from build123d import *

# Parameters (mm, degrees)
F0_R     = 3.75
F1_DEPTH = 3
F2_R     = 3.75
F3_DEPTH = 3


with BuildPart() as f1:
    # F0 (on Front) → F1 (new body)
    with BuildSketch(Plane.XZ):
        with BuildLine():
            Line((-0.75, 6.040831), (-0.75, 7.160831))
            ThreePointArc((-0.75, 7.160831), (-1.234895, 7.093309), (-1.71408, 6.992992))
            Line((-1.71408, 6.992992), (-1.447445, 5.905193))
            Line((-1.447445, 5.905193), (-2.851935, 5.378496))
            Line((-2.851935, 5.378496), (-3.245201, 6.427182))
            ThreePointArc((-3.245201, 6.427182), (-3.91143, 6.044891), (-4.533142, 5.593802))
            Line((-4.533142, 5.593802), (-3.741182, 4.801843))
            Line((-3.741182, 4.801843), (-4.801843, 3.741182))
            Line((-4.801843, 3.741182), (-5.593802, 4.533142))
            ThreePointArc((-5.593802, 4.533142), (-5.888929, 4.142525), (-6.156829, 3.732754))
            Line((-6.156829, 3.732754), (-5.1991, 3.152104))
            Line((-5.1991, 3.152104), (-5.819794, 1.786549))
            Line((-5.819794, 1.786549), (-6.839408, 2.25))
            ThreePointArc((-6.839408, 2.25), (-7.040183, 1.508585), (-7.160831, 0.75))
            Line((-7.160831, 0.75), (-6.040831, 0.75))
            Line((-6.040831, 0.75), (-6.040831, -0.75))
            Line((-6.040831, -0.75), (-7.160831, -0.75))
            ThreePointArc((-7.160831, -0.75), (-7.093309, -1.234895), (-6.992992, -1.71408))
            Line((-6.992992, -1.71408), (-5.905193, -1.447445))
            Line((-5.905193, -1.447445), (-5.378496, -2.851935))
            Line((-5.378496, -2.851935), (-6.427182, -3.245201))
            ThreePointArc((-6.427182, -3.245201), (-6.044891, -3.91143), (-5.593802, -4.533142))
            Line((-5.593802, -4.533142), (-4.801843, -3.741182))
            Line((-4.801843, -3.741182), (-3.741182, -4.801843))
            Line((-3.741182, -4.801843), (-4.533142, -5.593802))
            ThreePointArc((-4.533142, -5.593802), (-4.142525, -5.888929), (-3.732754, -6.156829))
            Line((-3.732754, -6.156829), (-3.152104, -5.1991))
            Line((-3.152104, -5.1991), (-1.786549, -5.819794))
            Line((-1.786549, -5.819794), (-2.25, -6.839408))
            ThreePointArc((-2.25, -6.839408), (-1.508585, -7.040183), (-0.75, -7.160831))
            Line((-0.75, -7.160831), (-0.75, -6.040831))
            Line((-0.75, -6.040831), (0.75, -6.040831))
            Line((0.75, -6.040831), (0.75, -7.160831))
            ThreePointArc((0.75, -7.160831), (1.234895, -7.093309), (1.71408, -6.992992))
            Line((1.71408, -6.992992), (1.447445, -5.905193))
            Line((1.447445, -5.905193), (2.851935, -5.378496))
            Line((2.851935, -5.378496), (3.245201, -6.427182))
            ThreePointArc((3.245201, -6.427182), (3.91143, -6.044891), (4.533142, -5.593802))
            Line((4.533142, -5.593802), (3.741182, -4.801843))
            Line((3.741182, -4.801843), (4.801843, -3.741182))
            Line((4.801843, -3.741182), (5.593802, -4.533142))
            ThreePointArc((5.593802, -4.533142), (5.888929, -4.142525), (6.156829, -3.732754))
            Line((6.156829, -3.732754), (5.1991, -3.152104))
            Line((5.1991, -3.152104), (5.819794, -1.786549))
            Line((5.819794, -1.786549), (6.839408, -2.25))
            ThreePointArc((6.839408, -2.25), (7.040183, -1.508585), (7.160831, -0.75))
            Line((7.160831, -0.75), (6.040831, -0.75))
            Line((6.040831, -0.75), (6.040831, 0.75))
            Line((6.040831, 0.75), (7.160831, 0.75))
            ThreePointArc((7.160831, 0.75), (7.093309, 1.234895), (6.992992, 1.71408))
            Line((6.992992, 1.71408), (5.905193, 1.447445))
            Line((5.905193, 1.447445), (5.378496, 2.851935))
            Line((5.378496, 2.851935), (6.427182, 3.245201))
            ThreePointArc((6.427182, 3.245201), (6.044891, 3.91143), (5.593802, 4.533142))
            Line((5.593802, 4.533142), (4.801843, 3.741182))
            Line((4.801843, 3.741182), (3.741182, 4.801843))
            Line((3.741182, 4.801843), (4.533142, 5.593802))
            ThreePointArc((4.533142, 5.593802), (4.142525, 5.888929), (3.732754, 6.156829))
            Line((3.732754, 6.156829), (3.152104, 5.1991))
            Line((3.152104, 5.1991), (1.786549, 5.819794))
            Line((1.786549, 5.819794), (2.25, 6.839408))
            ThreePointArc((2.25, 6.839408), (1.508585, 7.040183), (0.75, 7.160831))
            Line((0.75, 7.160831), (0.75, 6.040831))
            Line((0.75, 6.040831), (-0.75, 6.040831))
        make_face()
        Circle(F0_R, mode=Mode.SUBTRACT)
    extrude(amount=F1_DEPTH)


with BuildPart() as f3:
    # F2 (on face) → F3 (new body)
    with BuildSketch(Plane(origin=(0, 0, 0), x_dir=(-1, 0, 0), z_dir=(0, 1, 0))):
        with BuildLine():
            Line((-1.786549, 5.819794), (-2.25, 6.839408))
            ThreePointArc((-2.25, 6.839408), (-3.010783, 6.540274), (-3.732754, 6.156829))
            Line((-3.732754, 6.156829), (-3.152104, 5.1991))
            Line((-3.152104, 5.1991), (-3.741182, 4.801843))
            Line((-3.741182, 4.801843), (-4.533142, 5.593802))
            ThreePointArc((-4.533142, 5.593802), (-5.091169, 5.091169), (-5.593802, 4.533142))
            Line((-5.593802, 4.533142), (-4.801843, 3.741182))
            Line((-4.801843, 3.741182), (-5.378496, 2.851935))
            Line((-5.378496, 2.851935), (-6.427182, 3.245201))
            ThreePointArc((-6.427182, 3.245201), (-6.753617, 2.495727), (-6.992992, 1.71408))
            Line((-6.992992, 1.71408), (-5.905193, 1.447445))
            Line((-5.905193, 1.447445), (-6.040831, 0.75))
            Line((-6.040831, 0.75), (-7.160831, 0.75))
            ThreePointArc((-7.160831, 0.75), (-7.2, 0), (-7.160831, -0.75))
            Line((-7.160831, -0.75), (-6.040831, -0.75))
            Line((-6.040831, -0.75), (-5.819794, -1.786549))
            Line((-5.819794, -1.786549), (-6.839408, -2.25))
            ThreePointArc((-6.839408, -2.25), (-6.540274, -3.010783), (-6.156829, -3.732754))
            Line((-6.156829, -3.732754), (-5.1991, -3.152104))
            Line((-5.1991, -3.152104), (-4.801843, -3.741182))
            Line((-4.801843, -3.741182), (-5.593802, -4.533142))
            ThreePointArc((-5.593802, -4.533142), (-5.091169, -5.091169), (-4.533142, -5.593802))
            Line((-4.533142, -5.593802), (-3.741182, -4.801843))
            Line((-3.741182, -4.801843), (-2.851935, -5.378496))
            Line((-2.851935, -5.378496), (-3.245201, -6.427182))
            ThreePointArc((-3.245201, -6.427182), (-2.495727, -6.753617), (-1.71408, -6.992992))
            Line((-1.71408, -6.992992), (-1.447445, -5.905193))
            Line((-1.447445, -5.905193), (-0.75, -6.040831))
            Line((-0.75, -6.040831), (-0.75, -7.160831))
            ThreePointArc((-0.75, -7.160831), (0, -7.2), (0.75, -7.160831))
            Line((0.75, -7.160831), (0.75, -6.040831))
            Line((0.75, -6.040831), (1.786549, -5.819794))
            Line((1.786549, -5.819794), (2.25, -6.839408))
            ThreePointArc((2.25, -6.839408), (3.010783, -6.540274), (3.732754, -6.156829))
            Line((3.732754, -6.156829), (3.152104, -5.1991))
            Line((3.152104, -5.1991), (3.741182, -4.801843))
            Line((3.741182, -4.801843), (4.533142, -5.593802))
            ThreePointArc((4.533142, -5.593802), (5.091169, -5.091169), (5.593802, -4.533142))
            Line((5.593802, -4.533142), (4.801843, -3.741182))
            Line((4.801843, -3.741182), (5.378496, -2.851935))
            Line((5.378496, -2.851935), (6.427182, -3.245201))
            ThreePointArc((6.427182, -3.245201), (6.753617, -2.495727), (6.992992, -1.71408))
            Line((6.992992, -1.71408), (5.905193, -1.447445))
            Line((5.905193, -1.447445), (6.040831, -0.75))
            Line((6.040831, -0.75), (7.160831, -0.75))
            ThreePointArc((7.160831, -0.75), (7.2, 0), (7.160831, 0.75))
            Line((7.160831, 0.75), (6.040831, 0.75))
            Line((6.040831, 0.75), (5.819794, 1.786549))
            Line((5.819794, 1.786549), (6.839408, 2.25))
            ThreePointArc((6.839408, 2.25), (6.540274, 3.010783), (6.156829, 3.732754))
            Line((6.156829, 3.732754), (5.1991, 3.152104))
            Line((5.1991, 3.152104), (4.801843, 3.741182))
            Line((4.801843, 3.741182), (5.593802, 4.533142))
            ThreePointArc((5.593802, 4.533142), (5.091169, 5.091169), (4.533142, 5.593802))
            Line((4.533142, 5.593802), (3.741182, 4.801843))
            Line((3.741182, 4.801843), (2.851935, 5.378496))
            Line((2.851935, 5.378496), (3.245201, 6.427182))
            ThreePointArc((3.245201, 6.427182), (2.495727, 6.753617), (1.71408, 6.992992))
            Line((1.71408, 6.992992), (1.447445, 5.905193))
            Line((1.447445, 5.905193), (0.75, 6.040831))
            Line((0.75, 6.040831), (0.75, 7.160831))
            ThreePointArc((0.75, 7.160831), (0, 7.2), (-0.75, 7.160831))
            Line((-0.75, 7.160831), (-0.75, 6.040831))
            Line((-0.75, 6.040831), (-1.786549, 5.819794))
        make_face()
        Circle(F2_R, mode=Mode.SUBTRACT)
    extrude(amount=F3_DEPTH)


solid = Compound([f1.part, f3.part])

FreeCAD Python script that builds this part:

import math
import FreeCAD as App
import Part
import Sketcher

V = App.Vector
Q = App.Units.Quantity

doc = App.newDocument("Part")
body = doc.addObject("PartDesign::Body", "Body")

sketch1 = body.newObject("Sketcher::SketchObject", "Sketch")
sketch1.AttachmentSupport = (doc.getObject("XZ_Plane"), [""])
sketch1.MapMode = "FlatFace"
sketch1.addGeometry([
    Part.LineSegment(V(-0.75, 6.040831, 0), V(-0.75, 7.160831, 0)),
    Part.ArcOfCircle(Part.Circle(V(0.000026, -0.000171, 0), V(0, 0, 1), 7.200173), math.radians(95.979223), math.radians(103.77234)),
    Part.LineSegment(V(-1.71408, 6.992992, 0), V(-1.447445, 5.905193, 0)),
    Part.LineSegment(V(-1.447445, 5.905193, 0), V(-2.851935, 5.378496, 0)),
    Part.LineSegment(V(-2.851935, 5.378496, 0), V(-3.245201, 6.427182, 0)),
    Part.ArcOfCircle(Part.Circle(V(0.000038, -0.000059, 0), V(0, 0, 1), 7.20007), math.radians(116.790101), math.radians(129.020787)),
    Part.LineSegment(V(-4.533142, 5.593802, 0), V(-3.741182, 4.801843, 0)),
    Part.LineSegment(V(-3.741182, 4.801843, 0), V(-4.801843, 3.741182, 0)),
    Part.LineSegment(V(-4.801843, 3.741182, 0), V(-5.593802, 4.533142, 0)),
    Part.ArcOfCircle(Part.Circle(V(-0.00004, 0.000029, 0), V(0, 0, 1), 7.19995), math.radians(140.979135), math.radians(148.772494)),
    Part.LineSegment(V(-6.156829, 3.732754, 0), V(-5.1991, 3.152104, 0)),
    Part.LineSegment(V(-5.1991, 3.152104, 0), V(-5.819794, 1.786549, 0)),
    Part.LineSegment(V(-5.819794, 1.786549, 0), V(-6.839408, 2.25, 0)),
    Part.ArcOfCircle(Part.Circle(V(-0.00005, 0.000011, 0), V(0, 0, 1), 7.199949), math.radians(161.790003), math.radians(174.020889)),
    Part.LineSegment(V(-7.160831, 0.75, 0), V(-6.040831, 0.75, 0)),
    Part.LineSegment(V(-6.040831, 0.75, 0), V(-6.040831, -0.75, 0)),
    Part.LineSegment(V(-6.040831, -0.75, 0), V(-7.160831, -0.75, 0)),
    Part.ArcOfCircle(Part.Circle(V(0.000171, 0.000026, 0), V(0, 0, 1), 7.200173), math.radians(-174.020777), math.radians(-166.22766)),
    Part.LineSegment(V(-6.992992, -1.71408, 0), V(-5.905193, -1.447445, 0)),
    Part.LineSegment(V(-5.905193, -1.447445, 0), V(-5.378496, -2.851935, 0)),
    Part.LineSegment(V(-5.378496, -2.851935, 0), V(-6.427182, -3.245201, 0)),
    Part.ArcOfCircle(Part.Circle(V(0.000059, 0.000038, 0), V(0, 0, 1), 7.20007), math.radians(-153.209899), math.radians(-140.979213)),
    Part.LineSegment(V(-5.593802, -4.533142, 0), V(-4.801843, -3.741182, 0)),
    Part.LineSegment(V(-4.801843, -3.741182, 0), V(-3.741182, -4.801843, 0)),
    Part.LineSegment(V(-3.741182, -4.801843, 0), V(-4.533142, -5.593802, 0)),
    Part.ArcOfCircle(Part.Circle(V(-0.000029, -0.00004, 0), V(0, 0, 1), 7.19995), math.radians(-129.020865), math.radians(-121.227506)),
    Part.LineSegment(V(-3.732754, -6.156829, 0), V(-3.152104, -5.1991, 0)),
    Part.LineSegment(V(-3.152104, -5.1991, 0), V(-1.786549, -5.819794, 0)),
    Part.LineSegment(V(-1.786549, -5.819794, 0), V(-2.25, -6.839408, 0)),
    Part.ArcOfCircle(Part.Circle(V(-0.000011, -0.00005, 0), V(0, 0, 1), 7.199949), math.radians(-108.209997), math.radians(-95.979111)),
    Part.LineSegment(V(-0.75, -7.160831, 0), V(-0.75, -6.040831, 0)),
    Part.LineSegment(V(-0.75, -6.040831, 0), V(0.75, -6.040831, 0)),
    Part.LineSegment(V(0.75, -6.040831, 0), V(0.75, -7.160831, 0)),
    Part.ArcOfCircle(Part.Circle(V(-0.000026, 0.000171, 0), V(0, 0, 1), 7.200173), math.radians(-84.020777), math.radians(-76.22766)),
    Part.LineSegment(V(1.71408, -6.992992, 0), V(1.447445, -5.905193, 0)),
    Part.LineSegment(V(1.447445, -5.905193, 0), V(2.851935, -5.378496, 0)),
    Part.LineSegment(V(2.851935, -5.378496, 0), V(3.245201, -6.427182, 0)),
    Part.ArcOfCircle(Part.Circle(V(-0.000038, 0.000059, 0), V(0, 0, 1), 7.20007), math.radians(-63.209899), math.radians(-50.979213)),
    Part.LineSegment(V(4.533142, -5.593802, 0), V(3.741182, -4.801843, 0)),
    Part.LineSegment(V(3.741182, -4.801843, 0), V(4.801843, -3.741182, 0)),
    Part.LineSegment(V(4.801843, -3.741182, 0), V(5.593802, -4.533142, 0)),
    Part.ArcOfCircle(Part.Circle(V(0.00004, -0.000029, 0), V(0, 0, 1), 7.19995), math.radians(-39.020865), math.radians(-31.227506)),
    Part.LineSegment(V(6.156829, -3.732754, 0), V(5.1991, -3.152104, 0)),
    Part.LineSegment(V(5.1991, -3.152104, 0), V(5.819794, -1.786549, 0)),
    Part.LineSegment(V(5.819794, -1.786549, 0), V(6.839408, -2.25, 0)),
    Part.ArcOfCircle(Part.Circle(V(0.00005, -0.000011, 0), V(0, 0, 1), 7.199949), math.radians(-18.209997), math.radians(-5.979111)),
    Part.LineSegment(V(7.160831, -0.75, 0), V(6.040831, -0.75, 0)),
    Part.LineSegment(V(6.040831, -0.75, 0), V(6.040831, 0.75, 0)),
    Part.LineSegment(V(6.040831, 0.75, 0), V(7.160831, 0.75, 0)),
    Part.ArcOfCircle(Part.Circle(V(-0.000171, -0.000026, 0), V(0, 0, 1), 7.200173), math.radians(5.979223), math.radians(13.77234)),
    Part.LineSegment(V(6.992992, 1.71408, 0), V(5.905193, 1.447445, 0)),
    Part.LineSegment(V(5.905193, 1.447445, 0), V(5.378496, 2.851935, 0)),
    Part.LineSegment(V(5.378496, 2.851935, 0), V(6.427182, 3.245201, 0)),
    Part.ArcOfCircle(Part.Circle(V(-0.000059, -0.000038, 0), V(0, 0, 1), 7.20007), math.radians(26.790101), math.radians(39.020787)),
    Part.LineSegment(V(5.593802, 4.533142, 0), V(4.801843, 3.741182, 0)),
    Part.LineSegment(V(4.801843, 3.741182, 0), V(3.741182, 4.801843, 0)),
    Part.LineSegment(V(3.741182, 4.801843, 0), V(4.533142, 5.593802, 0)),
    Part.ArcOfCircle(Part.Circle(V(0.000029, 0.00004, 0), V(0, 0, 1), 7.19995), math.radians(50.979135), math.radians(58.772494)),
    Part.LineSegment(V(3.732754, 6.156829, 0), V(3.152104, 5.1991, 0)),
    Part.LineSegment(V(3.152104, 5.1991, 0), V(1.786549, 5.819794, 0)),
    Part.LineSegment(V(1.786549, 5.819794, 0), V(2.25, 6.839408, 0)),
    Part.ArcOfCircle(Part.Circle(V(0.000011, 0.00005, 0), V(0, 0, 1), 7.199949), math.radians(71.790003), math.radians(84.020889)),
    Part.LineSegment(V(0.75, 7.160831, 0), V(0.75, 6.040831, 0)),
    Part.LineSegment(V(0.75, 6.040831, 0), V(-0.75, 6.040831, 0)),
    Part.Circle(V(0, 0, 0), V(0, 0, 1), 3.75),
], False)
sketch1.addConstraint([
    Sketcher.Constraint("Coincident", 0, 2, 1, 1),
    Sketcher.Constraint("Coincident", 1, 2, 2, 1),
    Sketcher.Constraint("Coincident", 2, 2, 3, 1),
    Sketcher.Constraint("Coincident", 3, 2, 4, 1),
    Sketcher.Constraint("Coincident", 4, 2, 5, 1),
    Sketcher.Constraint("Coincident", 5, 2, 6, 1),
    Sketcher.Constraint("Coincident", 6, 2, 7, 1),
    Sketcher.Constraint("Coincident", 7, 2, 8, 1),
    Sketcher.Constraint("Coincident", 8, 2, 9, 1),
    Sketcher.Constraint("Coincident", 9, 2, 10, 1),
    Sketcher.Constraint("Coincident", 10, 2, 11, 1),
    Sketcher.Constraint("Coincident", 11, 2, 12, 1),
    Sketcher.Constraint("Coincident", 12, 2, 13, 1),
    Sketcher.Constraint("Coincident", 13, 2, 14, 1),
    Sketcher.Constraint("Coincident", 14, 2, 15, 1),
    Sketcher.Constraint("Coincident", 15, 2, 16, 1),
    Sketcher.Constraint("Coincident", 16, 2, 17, 1),
    Sketcher.Constraint("Coincident", 17, 2, 18, 1),
    Sketcher.Constraint("Coincident", 18, 2, 19, 1),
    Sketcher.Constraint("Coincident", 19, 2, 20, 1),
    Sketcher.Constraint("Coincident", 20, 2, 21, 1),
    Sketcher.Constraint("Coincident", 21, 2, 22, 1),
    Sketcher.Constraint("Coincident", 22, 2, 23, 1),
    Sketcher.Constraint("Coincident", 23, 2, 24, 1),
    Sketcher.Constraint("Coincident", 24, 2, 25, 1),
    Sketcher.Constraint("Coincident", 25, 2, 26, 1),
    Sketcher.Constraint("Coincident", 26, 2, 27, 1),
    Sketcher.Constraint("Coincident", 27, 2, 28, 1),
    Sketcher.Constraint("Coincident", 28, 2, 29, 1),
    Sketcher.Constraint("Coincident", 29, 2, 30, 1),
    Sketcher.Constraint("Coincident", 30, 2, 31, 1),
    Sketcher.Constraint("Coincident", 31, 2, 32, 1),
    Sketcher.Constraint("Coincident", 32, 2, 33, 1),
    Sketcher.Constraint("Coincident", 33, 2, 34, 1),
    Sketcher.Constraint("Coincident", 34, 2, 35, 1),
    Sketcher.Constraint("Coincident", 35, 2, 36, 1),
    Sketcher.Constraint("Coincident", 36, 2, 37, 1),
    Sketcher.Constraint("Coincident", 37, 2, 38, 1),
    Sketcher.Constraint("Coincident", 38, 2, 39, 1),
    Sketcher.Constraint("Coincident", 39, 2, 40, 1),
    Sketcher.Constraint("Coincident", 40, 2, 41, 1),
    Sketcher.Constraint("Coincident", 41, 2, 42, 1),
    Sketcher.Constraint("Coincident", 42, 2, 43, 1),
    Sketcher.Constraint("Coincident", 43, 2, 44, 1),
    Sketcher.Constraint("Coincident", 44, 2, 45, 1),
    Sketcher.Constraint("Coincident", 45, 2, 46, 1),
    Sketcher.Constraint("Coincident", 46, 2, 47, 1),
    Sketcher.Constraint("Coincident", 47, 2, 48, 1),
    Sketcher.Constraint("Coincident", 48, 2, 49, 1),
    Sketcher.Constraint("Coincident", 49, 2, 50, 1),
    Sketcher.Constraint("Coincident", 50, 2, 51, 1),
    Sketcher.Constraint("Coincident", 51, 2, 52, 1),
    Sketcher.Constraint("Coincident", 52, 2, 53, 1),
    Sketcher.Constraint("Coincident", 53, 2, 54, 1),
    Sketcher.Constraint("Coincident", 54, 2, 55, 1),
    Sketcher.Constraint("Coincident", 55, 2, 56, 1),
    Sketcher.Constraint("Coincident", 56, 2, 57, 1),
    Sketcher.Constraint("Coincident", 57, 2, 58, 1),
    Sketcher.Constraint("Coincident", 58, 2, 59, 1),
    Sketcher.Constraint("Coincident", 59, 2, 60, 1),
    Sketcher.Constraint("Coincident", 60, 2, 61, 1),
    Sketcher.Constraint("Coincident", 61, 2, 62, 1),
    Sketcher.Constraint("Coincident", 62, 2, 63, 1),
    Sketcher.Constraint("Coincident", 63, 2, 0, 1),
    Sketcher.Constraint("Vertical", 0),
    Sketcher.Constraint("Horizontal", 14),
    Sketcher.Constraint("Vertical", 15),
    Sketcher.Constraint("Horizontal", 16),
    Sketcher.Constraint("Vertical", 30),
    Sketcher.Constraint("Horizontal", 31),
    Sketcher.Constraint("Vertical", 32),
    Sketcher.Constraint("Horizontal", 46),
    Sketcher.Constraint("Vertical", 47),
    Sketcher.Constraint("Horizontal", 48),
    Sketcher.Constraint("Vertical", 62),
    Sketcher.Constraint("Horizontal", 63),
    Sketcher.Constraint("Coincident", 64, 3, -1, 1),
    Sketcher.Constraint("Equal", 9, 13),
    Sketcher.Constraint("Equal", 1, 17),
    Sketcher.Constraint("Equal", 5, 21),
    Sketcher.Constraint("Equal", 13, 25),
    Sketcher.Constraint("Equal", 25, 29),
    Sketcher.Constraint("Equal", 17, 33),
    Sketcher.Constraint("Equal", 21, 37),
    Sketcher.Constraint("Equal", 29, 41),
    Sketcher.Constraint("Equal", 41, 45),
    Sketcher.Constraint("Equal", 33, 49),
    Sketcher.Constraint("Equal", 37, 53),
    Sketcher.Constraint("Equal", 45, 57),
    Sketcher.Constraint("Equal", 57, 61),
    Sketcher.Constraint("Symmetric", 1, 3, 33, 3, -1, 1),
    Sketcher.Constraint("Symmetric", 5, 3, 37, 3, -1, 1),
    Sketcher.Constraint("Symmetric", 9, 3, 41, 3, -1, 1),
    Sketcher.Constraint("Symmetric", 13, 3, 45, 3, -1, 1),
    Sketcher.Constraint("Symmetric", 17, 3, 49, 3, -1, 1),
    Sketcher.Constraint("Symmetric", 21, 3, 53, 3, -1, 1),
    Sketcher.Constraint("Symmetric", 25, 3, 57, 3, -1, 1),
    Sketcher.Constraint("Symmetric", 29, 3, 61, 3, -1, 1),
    Sketcher.Constraint("Symmetric", 2, 2, 34, 2, -1, 1),
    Sketcher.Constraint("Symmetric", 3, 2, 35, 2, -1, 1),
    Sketcher.Constraint("Symmetric", 6, 2, 38, 2, -1, 1),
    Sketcher.Constraint("Symmetric", 7, 2, 39, 2, -1, 1),
    Sketcher.Constraint("Symmetric", 10, 2, 42, 2, -1, 1),
    Sketcher.Constraint("Symmetric", 11, 2, 43, 2, -1, 1),
    Sketcher.Constraint("Symmetric", 14, 2, 46, 2, -1, 1),
    Sketcher.Constraint("Symmetric", 18, 2, 50, 2, -1, 1),
    Sketcher.Constraint("Symmetric", 19, 2, 51, 2, -1, 1),
    Sketcher.Constraint("Symmetric", 22, 2, 54, 2, -1, 1),
    Sketcher.Constraint("Symmetric", 23, 2, 55, 2, -1, 1),
    Sketcher.Constraint("Symmetric", 26, 2, 58, 2, -1, 1),
    Sketcher.Constraint("Symmetric", 27, 2, 59, 2, -1, 1),
    Sketcher.Constraint("Symmetric", 30, 2, 62, 2, -1, 1),
    Sketcher.Constraint("Symmetric", 29, 2, 32, 2, -2),
    Sketcher.Constraint("Symmetric", 24, 2, 37, 2, -2),
    Sketcher.Constraint("Symmetric", 23, 2, 38, 2, -2),
    Sketcher.Constraint("Symmetric", 22, 2, 39, 2, -2),
    Sketcher.Constraint("Symmetric", 21, 2, 40, 2, -2),
    Sketcher.Constraint("Symmetric", 16, 2, 45, 2, -2),
    Sketcher.Constraint("Perpendicular", 3, 4),
    Sketcher.Constraint("Perpendicular", 6, 7),
    Sketcher.Constraint("Perpendicular", 7, 8),
    Sketcher.Constraint("Perpendicular", 11, 12),
    Sketcher.Constraint("Perpendicular", 2, 18),
    Sketcher.Constraint("Parallel", 4, 19),
    Sketcher.Constraint("Perpendicular", 19, 20),
    Sketcher.Constraint("Perpendicular", 8, 22),
    Sketcher.Constraint("Perpendicular", 22, 23),
    Sketcher.Constraint("Perpendicular", 23, 24),
    Sketcher.Constraint("Perpendicular", 10, 26),
    Sketcher.Constraint("Parallel", 12, 27),
    Sketcher.Constraint("Perpendicular", 27, 28),
    Sketcher.Constraint("Perpendicular", 18, 34),
    Sketcher.Constraint("Perpendicular", 35, 36),
    Sketcher.Constraint("Perpendicular", 26, 42),
    Sketcher.Constraint("Perpendicular", 43, 44),
    Sketcher.Constraint("Perpendicular", 34, 50),
    Sketcher.Constraint("Perpendicular", 51, 52),
    Sketcher.Constraint("Perpendicular", 40, 54),
    Sketcher.Constraint("Perpendicular", 55, 56),
    Sketcher.Constraint("Perpendicular", 42, 58),
    Sketcher.Constraint("Perpendicular", 59, 60),
    Sketcher.Constraint("Horizontal", 25, 3, 53, 3),
    Sketcher.Constraint("Horizontal", 14, 2, 47, 2),
    Sketcher.Constraint("Horizontal", 0, 2, 61, 2),
    Sketcher.Constraint("Vertical", 9, 3, 37, 3),
    Sketcher.Constraint("Equal", 48, 0),
    Sketcher.Constraint("Equal", 63, 15),
    Sketcher.Constraint("Equal", 2, 4),
    Sketcher.Constraint("Equal", 4, 6),
    Sketcher.Constraint("Equal", 3, 7),
    Sketcher.Constraint("Equal", 6, 8),
    Sketcher.Constraint("Equal", 8, 10),
    Sketcher.Constraint("Equal", 7, 11),
    Sketcher.Constraint("Equal", 10, 12),
    Sketcher.Constraint("Equal", 12, 18),
    Sketcher.Constraint("Equal", 11, 19),
    Sketcher.Constraint("Equal", 18, 20),
    Sketcher.Constraint("Equal", 24, 26),
    Sketcher.Constraint("Equal", 23, 27),
    Sketcher.Constraint("Equal", 26, 28),
    Sketcher.Constraint("Diameter", 64, Q("7.5 mm")),
    Sketcher.Constraint("DistanceX", 31, 1, 31, 2, Q("1.5 mm")),
    Sketcher.Constraint("Distance", 3, Q("1.500001 mm")),
    Sketcher.Constraint("DistanceX", 14, 1, 14, 2, Q("1.12 mm")),
    Sketcher.Constraint("Distance", 2, Q("1.12 mm")),
    Sketcher.Constraint("DistanceY", -1, 1, 12, 2, Q("2.25 mm")),
    Sketcher.Constraint("DistanceX", 28, 2, -1, 1, Q("2.25 mm")),
    Sketcher.Constraint("Radius", 5, Q("7.20007 mm")),
    Sketcher.Constraint("Radius", 9, Q("7.19995 mm")),
    Sketcher.Constraint("Radius", 1, Q("7.200173 mm")),
    Sketcher.Constraint("DistanceX", 4, 2, -1, 1, Q("3.245201 mm")),
    Sketcher.Constraint("DistanceX", 10, 2, -1, 1, Q("5.1991 mm")),
    Sketcher.Constraint("DistanceY", 20, 2, -1, 1, Q("3.245201 mm")),
    Sketcher.Constraint("DistanceY", 26, 2, -1, 1, Q("5.1991 mm")),
    Sketcher.Constraint("DistanceY", 1, 3, -1, 1, Q("0.000171 mm")),
    Sketcher.Constraint("DistanceX", -1, 1, 17, 3, Q("0.000171 mm")),
    Sketcher.Constraint("DistanceY", -1, 1, 0, 2, Q("7.160831 mm")),
    Sketcher.Constraint("DistanceX", 1, 2, -1, 1, Q("1.71408 mm")),
    Sketcher.Constraint("DistanceX", 6, 2, -1, 1, Q("3.741182 mm")),
    Sketcher.Constraint("DistanceY", -1, 1, 7, 2, Q("3.741182 mm")),
    Sketcher.Constraint("DistanceX", 9, 2, -1, 1, Q("6.156829 mm")),
    Sketcher.Constraint("DistanceY", -1, 1, 11, 2, Q("1.786549 mm")),
])
pad1 = body.newObject("PartDesign::Pad", "Pad")
pad1.Profile = sketch1
pad1.Length = 3
body2 = doc.addObject("PartDesign::Body", "Body001")

sketch2 = body2.newObject("Sketcher::SketchObject", "Sketch001")
sketch2.AttachmentSupport = (doc.getObject("XZ_Plane001"), [""])
sketch2.MapMode = "FlatFace"
sketch2.addGeometry([
    Part.LineSegment(V(1.786549, 5.819794, 0), V(2.25, 6.839408, 0)),
    Part.ArcOfCircle(Part.Circle(V(-0.000004, -0.000004, 0), V(0, 0, 1), 7.200005), math.radians(58.772451), math.radians(71.790024)),
    Part.LineSegment(V(3.732754, 6.156829, 0), V(3.152104, 5.1991, 0)),
    Part.LineSegment(V(3.152104, 5.1991, 0), V(3.741182, 4.801843, 0)),
    Part.LineSegment(V(3.741182, 4.801843, 0), V(4.533142, 5.593802, 0)),
    Part.ArcOfCircle(Part.Circle(V(0.000057, 0.000057, 0), V(0, 0, 1), 7.199919), math.radians(39.020777), math.radians(50.979223)),
    Part.LineSegment(V(5.593802, 4.533142, 0), V(4.801843, 3.741182, 0)),
    Part.LineSegment(V(4.801843, 3.741182, 0), V(5.378496, 2.851935, 0)),
    Part.LineSegment(V(5.378496, 2.851935, 0), V(6.427182, 3.245201, 0)),
    Part.ArcOfCircle(Part.Circle(V(-0.000068, -0.000028, 0), V(0, 0, 1), 7.200073), math.radians(13.77255), math.radians(26.789996)),
    Part.LineSegment(V(6.992992, 1.71408, 0), V(5.905193, 1.447445, 0)),
    Part.LineSegment(V(5.905193, 1.447445, 0), V(6.040831, 0.75, 0)),
    Part.LineSegment(V(6.040831, 0.75, 0), V(7.160831, 0.75, 0)),
    Part.ArcOfCircle(Part.Circle(V(-0.000008, 0, 0), V(0, 0, 1), 7.200008), math.radians(-5.97915), math.radians(5.97915)),
    Part.LineSegment(V(7.160831, -0.75, 0), V(6.040831, -0.75, 0)),
    Part.LineSegment(V(6.040831, -0.75, 0), V(5.819794, -1.786549, 0)),
    Part.LineSegment(V(5.819794, -1.786549, 0), V(6.839408, -2.25, 0)),
    Part.ArcOfCircle(Part.Circle(V(-0.000004, 0.000004, 0), V(0, 0, 1), 7.200005), math.radians(-31.227549), math.radians(-18.209976)),
    Part.LineSegment(V(6.156829, -3.732754, 0), V(5.1991, -3.152104, 0)),
    Part.LineSegment(V(5.1991, -3.152104, 0), V(4.801843, -3.741182, 0)),
    Part.LineSegment(V(4.801843, -3.741182, 0), V(5.593802, -4.533142, 0)),
    Part.ArcOfCircle(Part.Circle(V(0.000057, -0.000057, 0), V(0, 0, 1), 7.199919), math.radians(-50.979223), math.radians(-39.020777)),
    Part.LineSegment(V(4.533142, -5.593802, 0), V(3.741182, -4.801843, 0)),
    Part.LineSegment(V(3.741182, -4.801843, 0), V(2.851935, -5.378496, 0)),
    Part.LineSegment(V(2.851935, -5.378496, 0), V(3.245201, -6.427182, 0)),
    Part.ArcOfCircle(Part.Circle(V(-0.000028, 0.000068, 0), V(0, 0, 1), 7.200073), math.radians(-76.22745), math.radians(-63.210004)),
    Part.LineSegment(V(1.71408, -6.992992, 0), V(1.447445, -5.905193, 0)),
    Part.LineSegment(V(1.447445, -5.905193, 0), V(0.75, -6.040831, 0)),
    Part.LineSegment(V(0.75, -6.040831, 0), V(0.75, -7.160831, 0)),
    Part.ArcOfCircle(Part.Circle(V(0, 0.000008, 0), V(0, 0, 1), 7.200008), math.radians(-95.97915), math.radians(-84.02085)),
    Part.LineSegment(V(-0.75, -7.160831, 0), V(-0.75, -6.040831, 0)),
    Part.LineSegment(V(-0.75, -6.040831, 0), V(-1.786549, -5.819794, 0)),
    Part.LineSegment(V(-1.786549, -5.819794, 0), V(-2.25, -6.839408, 0)),
    Part.ArcOfCircle(Part.Circle(V(0.000004, 0.000004, 0), V(0, 0, 1), 7.200005), math.radians(-121.227549), math.radians(-108.209976)),
    Part.LineSegment(V(-3.732754, -6.156829, 0), V(-3.152104, -5.1991, 0)),
    Part.LineSegment(V(-3.152104, -5.1991, 0), V(-3.741182, -4.801843, 0)),
    Part.LineSegment(V(-3.741182, -4.801843, 0), V(-4.533142, -5.593802, 0)),
    Part.ArcOfCircle(Part.Circle(V(-0.000057, -0.000057, 0), V(0, 0, 1), 7.199919), math.radians(-140.979223), math.radians(-129.020777)),
    Part.LineSegment(V(-5.593802, -4.533142, 0), V(-4.801843, -3.741182, 0)),
    Part.LineSegment(V(-4.801843, -3.741182, 0), V(-5.378496, -2.851935, 0)),
    Part.LineSegment(V(-5.378496, -2.851935, 0), V(-6.427182, -3.245201, 0)),
    Part.ArcOfCircle(Part.Circle(V(0.000068, 0.000028, 0), V(0, 0, 1), 7.200073), math.radians(-166.22745), math.radians(-153.210004)),
    Part.LineSegment(V(-6.992992, -1.71408, 0), V(-5.905193, -1.447445, 0)),
    Part.LineSegment(V(-5.905193, -1.447445, 0), V(-6.040831, -0.75, 0)),
    Part.LineSegment(V(-6.040831, -0.75, 0), V(-7.160831, -0.75, 0)),
    Part.ArcOfCircle(Part.Circle(V(0.000008, 0, 0), V(0, 0, 1), 7.200008), math.radians(174.02085), math.radians(185.97915)),
    Part.LineSegment(V(-7.160831, 0.75, 0), V(-6.040831, 0.75, 0)),
    Part.LineSegment(V(-6.040831, 0.75, 0), V(-5.819794, 1.786549, 0)),
    Part.LineSegment(V(-5.819794, 1.786549, 0), V(-6.839408, 2.25, 0)),
    Part.ArcOfCircle(Part.Circle(V(0.000004, -0.000004, 0), V(0, 0, 1), 7.200005), math.radians(148.772451), math.radians(161.790024)),
    Part.LineSegment(V(-6.156829, 3.732754, 0), V(-5.1991, 3.152104, 0)),
    Part.LineSegment(V(-5.1991, 3.152104, 0), V(-4.801843, 3.741182, 0)),
    Part.LineSegment(V(-4.801843, 3.741182, 0), V(-5.593802, 4.533142, 0)),
    Part.ArcOfCircle(Part.Circle(V(-0.000057, 0.000057, 0), V(0, 0, 1), 7.199919), math.radians(129.020777), math.radians(140.979223)),
    Part.LineSegment(V(-4.533142, 5.593802, 0), V(-3.741182, 4.801843, 0)),
    Part.LineSegment(V(-3.741182, 4.801843, 0), V(-2.851935, 5.378496, 0)),
    Part.LineSegment(V(-2.851935, 5.378496, 0), V(-3.245201, 6.427182, 0)),
    Part.ArcOfCircle(Part.Circle(V(0.000028, -0.000068, 0), V(0, 0, 1), 7.200073), math.radians(103.77255), math.radians(116.789996)),
    Part.LineSegment(V(-1.71408, 6.992992, 0), V(-1.447445, 5.905193, 0)),
    Part.LineSegment(V(-1.447445, 5.905193, 0), V(-0.75, 6.040831, 0)),
    Part.LineSegment(V(-0.75, 6.040831, 0), V(-0.75, 7.160831, 0)),
    Part.ArcOfCircle(Part.Circle(V(0, -0.000008, 0), V(0, 0, 1), 7.200008), math.radians(84.02085), math.radians(95.97915)),
    Part.LineSegment(V(0.75, 7.160831, 0), V(0.75, 6.040831, 0)),
    Part.LineSegment(V(0.75, 6.040831, 0), V(1.786549, 5.819794, 0)),
    Part.Circle(V(0, 0, 0), V(0, 0, 1), 3.75),
], False)
sketch2.addConstraint([
    Sketcher.Constraint("Coincident", 0, 2, 1, 2),
    Sketcher.Constraint("Coincident", 1, 1, 2, 1),
    Sketcher.Constraint("Coincident", 2, 2, 3, 1),
    Sketcher.Constraint("Coincident", 3, 2, 4, 1),
    Sketcher.Constraint("Coincident", 4, 2, 5, 2),
    Sketcher.Constraint("Coincident", 5, 1, 6, 1),
    Sketcher.Constraint("Coincident", 6, 2, 7, 1),
    Sketcher.Constraint("Coincident", 7, 2, 8, 1),
    Sketcher.Constraint("Coincident", 8, 2, 9, 2),
    Sketcher.Constraint("Coincident", 9, 1, 10, 1),
    Sketcher.Constraint("Coincident", 10, 2, 11, 1),
    Sketcher.Constraint("Coincident", 11, 2, 12, 1),
    Sketcher.Constraint("Coincident", 12, 2, 13, 2),
    Sketcher.Constraint("Coincident", 13, 1, 14, 1),
    Sketcher.Constraint("Coincident", 14, 2, 15, 1),
    Sketcher.Constraint("Coincident", 15, 2, 16, 1),
    Sketcher.Constraint("Coincident", 16, 2, 17, 2),
    Sketcher.Constraint("Coincident", 17, 1, 18, 1),
    Sketcher.Constraint("Coincident", 18, 2, 19, 1),
    Sketcher.Constraint("Coincident", 19, 2, 20, 1),
    Sketcher.Constraint("Coincident", 20, 2, 21, 2),
    Sketcher.Constraint("Coincident", 21, 1, 22, 1),
    Sketcher.Constraint("Coincident", 22, 2, 23, 1),
    Sketcher.Constraint("Coincident", 23, 2, 24, 1),
    Sketcher.Constraint("Coincident", 24, 2, 25, 2),
    Sketcher.Constraint("Coincident", 25, 1, 26, 1),
    Sketcher.Constraint("Coincident", 26, 2, 27, 1),
    Sketcher.Constraint("Coincident", 27, 2, 28, 1),
    Sketcher.Constraint("Coincident", 28, 2, 29, 2),
    Sketcher.Constraint("Coincident", 29, 1, 30, 1),
    Sketcher.Constraint("Coincident", 30, 2, 31, 1),
    Sketcher.Constraint("Coincident", 31, 2, 32, 1),
    Sketcher.Constraint("Coincident", 32, 2, 33, 2),
    Sketcher.Constraint("Coincident", 33, 1, 34, 1),
    Sketcher.Constraint("Coincident", 34, 2, 35, 1),
    Sketcher.Constraint("Coincident", 35, 2, 36, 1),
    Sketcher.Constraint("Coincident", 36, 2, 37, 2),
    Sketcher.Constraint("Coincident", 37, 1, 38, 1),
    Sketcher.Constraint("Coincident", 38, 2, 39, 1),
    Sketcher.Constraint("Coincident", 39, 2, 40, 1),
    Sketcher.Constraint("Coincident", 40, 2, 41, 2),
    Sketcher.Constraint("Coincident", 41, 1, 42, 1),
    Sketcher.Constraint("Coincident", 42, 2, 43, 1),
    Sketcher.Constraint("Coincident", 43, 2, 44, 1),
    Sketcher.Constraint("Coincident", 44, 2, 45, 2),
    Sketcher.Constraint("Coincident", 45, 1, 46, 1),
    Sketcher.Constraint("Coincident", 46, 2, 47, 1),
    Sketcher.Constraint("Coincident", 47, 2, 48, 1),
    Sketcher.Constraint("Coincident", 48, 2, 49, 2),
    Sketcher.Constraint("Coincident", 49, 1, 50, 1),
    Sketcher.Constraint("Coincident", 50, 2, 51, 1),
    Sketcher.Constraint("Coincident", 51, 2, 52, 1),
    Sketcher.Constraint("Coincident", 52, 2, 53, 2),
    Sketcher.Constraint("Coincident", 53, 1, 54, 1),
    Sketcher.Constraint("Coincident", 54, 2, 55, 1),
    Sketcher.Constraint("Coincident", 55, 2, 56, 1),
    Sketcher.Constraint("Coincident", 56, 2, 57, 2),
    Sketcher.Constraint("Coincident", 57, 1, 58, 1),
    Sketcher.Constraint("Coincident", 58, 2, 59, 1),
    Sketcher.Constraint("Coincident", 59, 2, 60, 1),
    Sketcher.Constraint("Coincident", 60, 2, 61, 2),
    Sketcher.Constraint("Coincident", 61, 1, 62, 1),
    Sketcher.Constraint("Coincident", 62, 2, 63, 1),
    Sketcher.Constraint("Coincident", 63, 2, 0, 1),
    Sketcher.Constraint("Horizontal", 12),
    Sketcher.Constraint("Horizontal", 14),
    Sketcher.Constraint("Vertical", 28),
    Sketcher.Constraint("Vertical", 30),
    Sketcher.Constraint("Horizontal", 44),
    Sketcher.Constraint("Horizontal", 46),
    Sketcher.Constraint("Vertical", 60),
    Sketcher.Constraint("Vertical", 62),
    Sketcher.Constraint("Coincident", 1, 3, -1, 1),
    Sketcher.Constraint("Coincident", 13, 3, -1, 1),
    Sketcher.Constraint("Coincident", 17, 3, -1, 1),
    Sketcher.Constraint("Coincident", 29, 3, -1, 1),
    Sketcher.Constraint("Coincident", 33, 3, -1, 1),
    Sketcher.Constraint("Coincident", 45, 3, -1, 1),
    Sketcher.Constraint("Coincident", 49, 3, -1, 1),
    Sketcher.Constraint("Coincident", 61, 3, -1, 1),
    Sketcher.Constraint("Coincident", 64, 3, -1, 1),
    Sketcher.Constraint("Equal", 1, 17),
    Sketcher.Constraint("Equal", 5, 21),
    Sketcher.Constraint("Equal", 9, 25),
    Sketcher.Constraint("Equal", 13, 29),
    Sketcher.Constraint("Equal", 17, 33),
    Sketcher.Constraint("Equal", 21, 37),
    Sketcher.Constraint("Equal", 25, 41),
    Sketcher.Constraint("Equal", 29, 45),
    Sketcher.Constraint("Equal", 33, 49),
    Sketcher.Constraint("Equal", 37, 53),
    Sketcher.Constraint("Equal", 41, 57),
    Sketcher.Constraint("Equal", 45, 61),
    Sketcher.Constraint("Symmetric", 5, 3, 37, 3, -1, 1),
    Sketcher.Constraint("Symmetric", 9, 3, 41, 3, -1, 1),
    Sketcher.Constraint("Symmetric", 21, 3, 53, 3, -1, 1),
    Sketcher.Constraint("Symmetric", 25, 3, 57, 3, -1, 1),
    Sketcher.Constraint("Symmetric", 2, 2, 34, 2, -1, 1),
    Sketcher.Constraint("Symmetric", 3, 2, 35, 2, -1, 1),
    Sketcher.Constraint("Symmetric", 6, 2, 38, 2, -1, 1),
    Sketcher.Constraint("Symmetric", 7, 2, 39, 2, -1, 1),
    Sketcher.Constraint("Symmetric", 10, 2, 42, 2, -1, 1),
    Sketcher.Constraint("Symmetric", 11, 2, 43, 2, -1, 1),
    Sketcher.Constraint("Symmetric", 14, 2, 46, 2, -1, 1),
    Sketcher.Constraint("Symmetric", 15, 2, 47, 2, -1, 1),
    Sketcher.Constraint("Symmetric", 18, 2, 50, 2, -1, 1),
    Sketcher.Constraint("Symmetric", 19, 2, 51, 2, -1, 1),
    Sketcher.Constraint("Symmetric", 22, 2, 54, 2, -1, 1),
    Sketcher.Constraint("Symmetric", 23, 2, 55, 2, -1, 1),
    Sketcher.Constraint("Symmetric", 26, 2, 58, 2, -1, 1),
    Sketcher.Constraint("Symmetric", 27, 2, 59, 2, -1, 1),
    Sketcher.Constraint("Symmetric", 30, 2, 62, 2, -1, 1),
    Sketcher.Constraint("Symmetric", 31, 2, 63, 2, -1, 1),
    Sketcher.Constraint("Symmetric", 21, 3, 37, 3, -2),
    Sketcher.Constraint("Symmetric", 27, 2, 30, 2, -2),
    Sketcher.Constraint("Symmetric", 22, 2, 35, 2, -2),
    Sketcher.Constraint("Symmetric", 19, 2, 38, 2, -2),
    Sketcher.Constraint("Symmetric", 14, 2, 43, 2, -2),
    Sketcher.Constraint("Parallel", 4, 6),
    Sketcher.Constraint("Perpendicular", 0, 16),
    Sketcher.Constraint("Perpendicular", 2, 18),
    Sketcher.Constraint("Perpendicular", 3, 19),
    Sketcher.Constraint("Perpendicular", 6, 20),
    Sketcher.Constraint("Parallel", 20, 22),
    Sketcher.Constraint("Perpendicular", 7, 23),
    Sketcher.Constraint("Perpendicular", 8, 24),
    Sketcher.Constraint("Perpendicular", 10, 26),
    Sketcher.Constraint("Perpendicular", 11, 27),
    Sketcher.Constraint("Perpendicular", 15, 31),
    Sketcher.Constraint("Perpendicular", 16, 32),
    Sketcher.Constraint("Perpendicular", 18, 34),
    Sketcher.Constraint("Perpendicular", 22, 36),
    Sketcher.Constraint("Parallel", 36, 38),
    Sketcher.Constraint("Perpendicular", 24, 40),
    Sketcher.Constraint("Perpendicular", 26, 42),
    Sketcher.Constraint("Perpendicular", 32, 48),
    Sketcher.Constraint("Perpendicular", 34, 50),
    Sketcher.Constraint("Perpendicular", 38, 52),
    Sketcher.Constraint("Parallel", 52, 54),
    Sketcher.Constraint("Perpendicular", 40, 56),
    Sketcher.Constraint("Perpendicular", 42, 58),
    Sketcher.Constraint("Horizontal", 21, 1, 36, 2),
    Sketcher.Constraint("Equal", 46, 28),
    Sketcher.Constraint("Equal", 0, 2),
    Sketcher.Constraint("Equal", 2, 4),
    Sketcher.Constraint("Equal", 4, 6),
    Sketcher.Constraint("Equal", 6, 8),
    Sketcher.Constraint("Equal", 8, 10),
    Sketcher.Constraint("Equal", 3, 11),
    Sketcher.Constraint("Equal", 7, 15),
    Sketcher.Constraint("Equal", 10, 16),
    Sketcher.Constraint("Equal", 16, 18),
    Sketcher.Constraint("Equal", 11, 19),
    Sketcher.Constraint("Equal", 15, 23),
    Sketcher.Constraint("Equal", 22, 24),
    Sketcher.Constraint("Equal", 24, 26),
    Sketcher.Constraint("Equal", 19, 27),
    Sketcher.Constraint("Equal", 23, 31),
    Sketcher.Constraint("Diameter", 64, Q("7.5 mm")),
    Sketcher.Constraint("DistanceX", 12, 1, 12, 2, Q("1.12 mm")),
    Sketcher.Constraint("Distance", 0, Q("1.12 mm")),
    Sketcher.Constraint("DistanceX", -1, 1, 0, 2, Q("2.25 mm")),
    Sketcher.Constraint("DistanceY", -1, 1, 11, 2, Q("0.75 mm")),
    Sketcher.Constraint("Radius", 5, Q("7.199919 mm")),
    Sketcher.Constraint("Radius", 1, Q("7.200005 mm")),
    Sketcher.Constraint("Radius", 9, Q("7.200073 mm")),
    Sketcher.Constraint("Radius", 13, Q("7.200008 mm")),
    Sketcher.Constraint("DistanceY", -1, 1, 2, 2, Q("5.1991 mm")),
    Sketcher.Constraint("DistanceY", -1, 1, 8, 2, Q("3.245201 mm")),
    Sketcher.Constraint("DistanceX", -1, 1, 18, 2, Q("5.1991 mm")),
    Sketcher.Constraint("Distance", 3, Q("0.710511 mm")),
    Sketcher.Constraint("DistanceY", -1, 1, 1, 1, Q("6.156829 mm")),
    Sketcher.Constraint("DistanceX", -1, 1, 3, 2, Q("3.741182 mm")),
    Sketcher.Constraint("DistanceX", -1, 1, 9, 1, Q("6.992992 mm")),
    Sketcher.Constraint("DistanceY", -1, 1, 9, 1, Q("1.71408 mm")),
    Sketcher.Constraint("DistanceY", 15, 2, -1, 1, Q("1.786549 mm")),
    Sketcher.Constraint("DistanceX", -1, 1, 7, 2, Q("5.378496 mm")),
])
pad2 = body2.newObject("PartDesign::Pad", "Pad001")
pad2.Profile = sketch2
pad2.Length = 3
pad2.Reversed = True

doc.recompute()
